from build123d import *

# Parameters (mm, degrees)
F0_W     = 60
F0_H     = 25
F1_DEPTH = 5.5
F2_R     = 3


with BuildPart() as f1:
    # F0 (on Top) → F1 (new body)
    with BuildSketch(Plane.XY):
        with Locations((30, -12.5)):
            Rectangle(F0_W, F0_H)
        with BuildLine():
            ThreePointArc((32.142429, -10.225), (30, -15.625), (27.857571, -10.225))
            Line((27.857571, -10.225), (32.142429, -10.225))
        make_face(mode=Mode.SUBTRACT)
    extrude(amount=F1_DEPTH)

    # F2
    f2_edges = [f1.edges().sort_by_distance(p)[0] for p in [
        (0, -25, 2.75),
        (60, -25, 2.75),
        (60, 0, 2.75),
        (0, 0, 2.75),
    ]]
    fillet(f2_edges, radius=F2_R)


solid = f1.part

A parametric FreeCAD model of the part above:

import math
import FreeCAD as App
import Part
import Sketcher
Q = App.Units.Quantity


def edges_at(feature, points):
    """Names of the edges that pass closest to the given points."""
    edges = feature.Shape.Edges
    near = lambda p: min(range(len(edges)), key=lambda i: edges[i].distToShape(Part.Vertex(*p))[0])
    return sorted({f"Edge{near(p) + 1}" for p in points})

doc = App.newDocument("Part")
params = doc.addObject("Spreadsheet::Sheet", "Params")
for row, (alias, value) in enumerate([
    ("sketch1_width", "60 mm"),
    ("sketch1_height", "25 mm"),
    ("pad1_length", "5.5 mm"),
    ("fillet_radius", "3 mm"),
], start=1):
    params.set(f"A{row}", alias)
    params.set(f"B{row}", "=" + value)
    params.setAlias(f"B{row}", alias)

body = doc.addObject("PartDesign::Body", "Body")

# Sketch on XY plane
sketch1 = body.newObject("Sketcher::SketchObject", "Sketch")
sketch1.AttachmentSupport = (doc.getObject("XY_Plane"), [""])
sketch1.MapMode = "FlatFace"
sketch1.addGeometry([
    Part.LineSegment(App.Vector(0, 0, 0), App.Vector(0, -25, 0)),  # 0
    Part.LineSegment(App.Vector(0, -25, 0), App.Vector(60, -25, 0)),  # 1
    Part.LineSegment(App.Vector(60, -25, 0), App.Vector(60, 0, 0)),  # 2
    Part.LineSegment(App.Vector(60, 0, 0), App.Vector(0, 0, 0)),  # 3
    Part.LineSegment(App.Vector(27.9, -10.2, 0), App.Vector(32.1, -10.2, 0)),  # 4
    Part.ArcOfCircle(Part.Circle(App.Vector(30, -12.5, 0), App.Vector(0, 0, 1), 3.1), math.radians(133), math.radians(407)),  # 5
], False)
sketch1.addConstraint([
    Sketcher.Constraint("Coincident", 0, 2, 1, 1),
    Sketcher.Constraint("Coincident", 1, 2, 2, 1),
    Sketcher.Constraint("Coincident", 2, 2, 3, 1),
    Sketcher.Constraint("Coincident", 3, 2, 0, 1),
    Sketcher.Constraint("Coincident", 4, 1, 5, 1),
    Sketcher.Constraint("Coincident", 5, 2, 4, 2),
    Sketcher.Constraint("Vertical", 0),
    Sketcher.Constraint("Horizontal", 1),
    Sketcher.Constraint("Vertical", 2),
    Sketcher.Constraint("Horizontal", 3),
    Sketcher.Constraint("Horizontal", 4),
    Sketcher.Constraint("Coincident", 3, 2, -1, 1),
    Sketcher.Constraint("DistanceX", 1, 1, 1, 2, Q("60 mm")),
    Sketcher.Constraint("DistanceY", 0, 2, 0, 1, Q("25 mm")),
    Sketcher.Constraint("DistanceX", -1, 1, 5, 3, Q("30 mm")),
    Sketcher.Constraint("Radius", 5, Q("3.125 mm")),
    Sketcher.Constraint("DistanceY", 5, 3, -1, 1, Q("12.5 mm")),
    Sketcher.Constraint("DistanceY", 4, 1, -1, 1, Q("10.225 mm")),
])
sketch1.setExpression("Constraints[12]", "Params.sketch1_width")
sketch1.setExpression("Constraints[13]", "Params.sketch1_height")
pad1 = body.newObject("PartDesign::Pad", "Pad")
pad1.Profile = sketch1
pad1.setExpression("Length", "Params.pad1_length")
doc.recompute()

fillet = body.newObject("PartDesign::Fillet", "Fillet")
fillet.Base = (pad1, edges_at(pad1, [
    (0, -25, 2.75),
    (60, -25, 2.75),
    (60, 0, 2.75),
    (0, 0, 2.75),
]))
fillet.setExpression("Radius", "Params.fillet_radius")

doc.recompute()
